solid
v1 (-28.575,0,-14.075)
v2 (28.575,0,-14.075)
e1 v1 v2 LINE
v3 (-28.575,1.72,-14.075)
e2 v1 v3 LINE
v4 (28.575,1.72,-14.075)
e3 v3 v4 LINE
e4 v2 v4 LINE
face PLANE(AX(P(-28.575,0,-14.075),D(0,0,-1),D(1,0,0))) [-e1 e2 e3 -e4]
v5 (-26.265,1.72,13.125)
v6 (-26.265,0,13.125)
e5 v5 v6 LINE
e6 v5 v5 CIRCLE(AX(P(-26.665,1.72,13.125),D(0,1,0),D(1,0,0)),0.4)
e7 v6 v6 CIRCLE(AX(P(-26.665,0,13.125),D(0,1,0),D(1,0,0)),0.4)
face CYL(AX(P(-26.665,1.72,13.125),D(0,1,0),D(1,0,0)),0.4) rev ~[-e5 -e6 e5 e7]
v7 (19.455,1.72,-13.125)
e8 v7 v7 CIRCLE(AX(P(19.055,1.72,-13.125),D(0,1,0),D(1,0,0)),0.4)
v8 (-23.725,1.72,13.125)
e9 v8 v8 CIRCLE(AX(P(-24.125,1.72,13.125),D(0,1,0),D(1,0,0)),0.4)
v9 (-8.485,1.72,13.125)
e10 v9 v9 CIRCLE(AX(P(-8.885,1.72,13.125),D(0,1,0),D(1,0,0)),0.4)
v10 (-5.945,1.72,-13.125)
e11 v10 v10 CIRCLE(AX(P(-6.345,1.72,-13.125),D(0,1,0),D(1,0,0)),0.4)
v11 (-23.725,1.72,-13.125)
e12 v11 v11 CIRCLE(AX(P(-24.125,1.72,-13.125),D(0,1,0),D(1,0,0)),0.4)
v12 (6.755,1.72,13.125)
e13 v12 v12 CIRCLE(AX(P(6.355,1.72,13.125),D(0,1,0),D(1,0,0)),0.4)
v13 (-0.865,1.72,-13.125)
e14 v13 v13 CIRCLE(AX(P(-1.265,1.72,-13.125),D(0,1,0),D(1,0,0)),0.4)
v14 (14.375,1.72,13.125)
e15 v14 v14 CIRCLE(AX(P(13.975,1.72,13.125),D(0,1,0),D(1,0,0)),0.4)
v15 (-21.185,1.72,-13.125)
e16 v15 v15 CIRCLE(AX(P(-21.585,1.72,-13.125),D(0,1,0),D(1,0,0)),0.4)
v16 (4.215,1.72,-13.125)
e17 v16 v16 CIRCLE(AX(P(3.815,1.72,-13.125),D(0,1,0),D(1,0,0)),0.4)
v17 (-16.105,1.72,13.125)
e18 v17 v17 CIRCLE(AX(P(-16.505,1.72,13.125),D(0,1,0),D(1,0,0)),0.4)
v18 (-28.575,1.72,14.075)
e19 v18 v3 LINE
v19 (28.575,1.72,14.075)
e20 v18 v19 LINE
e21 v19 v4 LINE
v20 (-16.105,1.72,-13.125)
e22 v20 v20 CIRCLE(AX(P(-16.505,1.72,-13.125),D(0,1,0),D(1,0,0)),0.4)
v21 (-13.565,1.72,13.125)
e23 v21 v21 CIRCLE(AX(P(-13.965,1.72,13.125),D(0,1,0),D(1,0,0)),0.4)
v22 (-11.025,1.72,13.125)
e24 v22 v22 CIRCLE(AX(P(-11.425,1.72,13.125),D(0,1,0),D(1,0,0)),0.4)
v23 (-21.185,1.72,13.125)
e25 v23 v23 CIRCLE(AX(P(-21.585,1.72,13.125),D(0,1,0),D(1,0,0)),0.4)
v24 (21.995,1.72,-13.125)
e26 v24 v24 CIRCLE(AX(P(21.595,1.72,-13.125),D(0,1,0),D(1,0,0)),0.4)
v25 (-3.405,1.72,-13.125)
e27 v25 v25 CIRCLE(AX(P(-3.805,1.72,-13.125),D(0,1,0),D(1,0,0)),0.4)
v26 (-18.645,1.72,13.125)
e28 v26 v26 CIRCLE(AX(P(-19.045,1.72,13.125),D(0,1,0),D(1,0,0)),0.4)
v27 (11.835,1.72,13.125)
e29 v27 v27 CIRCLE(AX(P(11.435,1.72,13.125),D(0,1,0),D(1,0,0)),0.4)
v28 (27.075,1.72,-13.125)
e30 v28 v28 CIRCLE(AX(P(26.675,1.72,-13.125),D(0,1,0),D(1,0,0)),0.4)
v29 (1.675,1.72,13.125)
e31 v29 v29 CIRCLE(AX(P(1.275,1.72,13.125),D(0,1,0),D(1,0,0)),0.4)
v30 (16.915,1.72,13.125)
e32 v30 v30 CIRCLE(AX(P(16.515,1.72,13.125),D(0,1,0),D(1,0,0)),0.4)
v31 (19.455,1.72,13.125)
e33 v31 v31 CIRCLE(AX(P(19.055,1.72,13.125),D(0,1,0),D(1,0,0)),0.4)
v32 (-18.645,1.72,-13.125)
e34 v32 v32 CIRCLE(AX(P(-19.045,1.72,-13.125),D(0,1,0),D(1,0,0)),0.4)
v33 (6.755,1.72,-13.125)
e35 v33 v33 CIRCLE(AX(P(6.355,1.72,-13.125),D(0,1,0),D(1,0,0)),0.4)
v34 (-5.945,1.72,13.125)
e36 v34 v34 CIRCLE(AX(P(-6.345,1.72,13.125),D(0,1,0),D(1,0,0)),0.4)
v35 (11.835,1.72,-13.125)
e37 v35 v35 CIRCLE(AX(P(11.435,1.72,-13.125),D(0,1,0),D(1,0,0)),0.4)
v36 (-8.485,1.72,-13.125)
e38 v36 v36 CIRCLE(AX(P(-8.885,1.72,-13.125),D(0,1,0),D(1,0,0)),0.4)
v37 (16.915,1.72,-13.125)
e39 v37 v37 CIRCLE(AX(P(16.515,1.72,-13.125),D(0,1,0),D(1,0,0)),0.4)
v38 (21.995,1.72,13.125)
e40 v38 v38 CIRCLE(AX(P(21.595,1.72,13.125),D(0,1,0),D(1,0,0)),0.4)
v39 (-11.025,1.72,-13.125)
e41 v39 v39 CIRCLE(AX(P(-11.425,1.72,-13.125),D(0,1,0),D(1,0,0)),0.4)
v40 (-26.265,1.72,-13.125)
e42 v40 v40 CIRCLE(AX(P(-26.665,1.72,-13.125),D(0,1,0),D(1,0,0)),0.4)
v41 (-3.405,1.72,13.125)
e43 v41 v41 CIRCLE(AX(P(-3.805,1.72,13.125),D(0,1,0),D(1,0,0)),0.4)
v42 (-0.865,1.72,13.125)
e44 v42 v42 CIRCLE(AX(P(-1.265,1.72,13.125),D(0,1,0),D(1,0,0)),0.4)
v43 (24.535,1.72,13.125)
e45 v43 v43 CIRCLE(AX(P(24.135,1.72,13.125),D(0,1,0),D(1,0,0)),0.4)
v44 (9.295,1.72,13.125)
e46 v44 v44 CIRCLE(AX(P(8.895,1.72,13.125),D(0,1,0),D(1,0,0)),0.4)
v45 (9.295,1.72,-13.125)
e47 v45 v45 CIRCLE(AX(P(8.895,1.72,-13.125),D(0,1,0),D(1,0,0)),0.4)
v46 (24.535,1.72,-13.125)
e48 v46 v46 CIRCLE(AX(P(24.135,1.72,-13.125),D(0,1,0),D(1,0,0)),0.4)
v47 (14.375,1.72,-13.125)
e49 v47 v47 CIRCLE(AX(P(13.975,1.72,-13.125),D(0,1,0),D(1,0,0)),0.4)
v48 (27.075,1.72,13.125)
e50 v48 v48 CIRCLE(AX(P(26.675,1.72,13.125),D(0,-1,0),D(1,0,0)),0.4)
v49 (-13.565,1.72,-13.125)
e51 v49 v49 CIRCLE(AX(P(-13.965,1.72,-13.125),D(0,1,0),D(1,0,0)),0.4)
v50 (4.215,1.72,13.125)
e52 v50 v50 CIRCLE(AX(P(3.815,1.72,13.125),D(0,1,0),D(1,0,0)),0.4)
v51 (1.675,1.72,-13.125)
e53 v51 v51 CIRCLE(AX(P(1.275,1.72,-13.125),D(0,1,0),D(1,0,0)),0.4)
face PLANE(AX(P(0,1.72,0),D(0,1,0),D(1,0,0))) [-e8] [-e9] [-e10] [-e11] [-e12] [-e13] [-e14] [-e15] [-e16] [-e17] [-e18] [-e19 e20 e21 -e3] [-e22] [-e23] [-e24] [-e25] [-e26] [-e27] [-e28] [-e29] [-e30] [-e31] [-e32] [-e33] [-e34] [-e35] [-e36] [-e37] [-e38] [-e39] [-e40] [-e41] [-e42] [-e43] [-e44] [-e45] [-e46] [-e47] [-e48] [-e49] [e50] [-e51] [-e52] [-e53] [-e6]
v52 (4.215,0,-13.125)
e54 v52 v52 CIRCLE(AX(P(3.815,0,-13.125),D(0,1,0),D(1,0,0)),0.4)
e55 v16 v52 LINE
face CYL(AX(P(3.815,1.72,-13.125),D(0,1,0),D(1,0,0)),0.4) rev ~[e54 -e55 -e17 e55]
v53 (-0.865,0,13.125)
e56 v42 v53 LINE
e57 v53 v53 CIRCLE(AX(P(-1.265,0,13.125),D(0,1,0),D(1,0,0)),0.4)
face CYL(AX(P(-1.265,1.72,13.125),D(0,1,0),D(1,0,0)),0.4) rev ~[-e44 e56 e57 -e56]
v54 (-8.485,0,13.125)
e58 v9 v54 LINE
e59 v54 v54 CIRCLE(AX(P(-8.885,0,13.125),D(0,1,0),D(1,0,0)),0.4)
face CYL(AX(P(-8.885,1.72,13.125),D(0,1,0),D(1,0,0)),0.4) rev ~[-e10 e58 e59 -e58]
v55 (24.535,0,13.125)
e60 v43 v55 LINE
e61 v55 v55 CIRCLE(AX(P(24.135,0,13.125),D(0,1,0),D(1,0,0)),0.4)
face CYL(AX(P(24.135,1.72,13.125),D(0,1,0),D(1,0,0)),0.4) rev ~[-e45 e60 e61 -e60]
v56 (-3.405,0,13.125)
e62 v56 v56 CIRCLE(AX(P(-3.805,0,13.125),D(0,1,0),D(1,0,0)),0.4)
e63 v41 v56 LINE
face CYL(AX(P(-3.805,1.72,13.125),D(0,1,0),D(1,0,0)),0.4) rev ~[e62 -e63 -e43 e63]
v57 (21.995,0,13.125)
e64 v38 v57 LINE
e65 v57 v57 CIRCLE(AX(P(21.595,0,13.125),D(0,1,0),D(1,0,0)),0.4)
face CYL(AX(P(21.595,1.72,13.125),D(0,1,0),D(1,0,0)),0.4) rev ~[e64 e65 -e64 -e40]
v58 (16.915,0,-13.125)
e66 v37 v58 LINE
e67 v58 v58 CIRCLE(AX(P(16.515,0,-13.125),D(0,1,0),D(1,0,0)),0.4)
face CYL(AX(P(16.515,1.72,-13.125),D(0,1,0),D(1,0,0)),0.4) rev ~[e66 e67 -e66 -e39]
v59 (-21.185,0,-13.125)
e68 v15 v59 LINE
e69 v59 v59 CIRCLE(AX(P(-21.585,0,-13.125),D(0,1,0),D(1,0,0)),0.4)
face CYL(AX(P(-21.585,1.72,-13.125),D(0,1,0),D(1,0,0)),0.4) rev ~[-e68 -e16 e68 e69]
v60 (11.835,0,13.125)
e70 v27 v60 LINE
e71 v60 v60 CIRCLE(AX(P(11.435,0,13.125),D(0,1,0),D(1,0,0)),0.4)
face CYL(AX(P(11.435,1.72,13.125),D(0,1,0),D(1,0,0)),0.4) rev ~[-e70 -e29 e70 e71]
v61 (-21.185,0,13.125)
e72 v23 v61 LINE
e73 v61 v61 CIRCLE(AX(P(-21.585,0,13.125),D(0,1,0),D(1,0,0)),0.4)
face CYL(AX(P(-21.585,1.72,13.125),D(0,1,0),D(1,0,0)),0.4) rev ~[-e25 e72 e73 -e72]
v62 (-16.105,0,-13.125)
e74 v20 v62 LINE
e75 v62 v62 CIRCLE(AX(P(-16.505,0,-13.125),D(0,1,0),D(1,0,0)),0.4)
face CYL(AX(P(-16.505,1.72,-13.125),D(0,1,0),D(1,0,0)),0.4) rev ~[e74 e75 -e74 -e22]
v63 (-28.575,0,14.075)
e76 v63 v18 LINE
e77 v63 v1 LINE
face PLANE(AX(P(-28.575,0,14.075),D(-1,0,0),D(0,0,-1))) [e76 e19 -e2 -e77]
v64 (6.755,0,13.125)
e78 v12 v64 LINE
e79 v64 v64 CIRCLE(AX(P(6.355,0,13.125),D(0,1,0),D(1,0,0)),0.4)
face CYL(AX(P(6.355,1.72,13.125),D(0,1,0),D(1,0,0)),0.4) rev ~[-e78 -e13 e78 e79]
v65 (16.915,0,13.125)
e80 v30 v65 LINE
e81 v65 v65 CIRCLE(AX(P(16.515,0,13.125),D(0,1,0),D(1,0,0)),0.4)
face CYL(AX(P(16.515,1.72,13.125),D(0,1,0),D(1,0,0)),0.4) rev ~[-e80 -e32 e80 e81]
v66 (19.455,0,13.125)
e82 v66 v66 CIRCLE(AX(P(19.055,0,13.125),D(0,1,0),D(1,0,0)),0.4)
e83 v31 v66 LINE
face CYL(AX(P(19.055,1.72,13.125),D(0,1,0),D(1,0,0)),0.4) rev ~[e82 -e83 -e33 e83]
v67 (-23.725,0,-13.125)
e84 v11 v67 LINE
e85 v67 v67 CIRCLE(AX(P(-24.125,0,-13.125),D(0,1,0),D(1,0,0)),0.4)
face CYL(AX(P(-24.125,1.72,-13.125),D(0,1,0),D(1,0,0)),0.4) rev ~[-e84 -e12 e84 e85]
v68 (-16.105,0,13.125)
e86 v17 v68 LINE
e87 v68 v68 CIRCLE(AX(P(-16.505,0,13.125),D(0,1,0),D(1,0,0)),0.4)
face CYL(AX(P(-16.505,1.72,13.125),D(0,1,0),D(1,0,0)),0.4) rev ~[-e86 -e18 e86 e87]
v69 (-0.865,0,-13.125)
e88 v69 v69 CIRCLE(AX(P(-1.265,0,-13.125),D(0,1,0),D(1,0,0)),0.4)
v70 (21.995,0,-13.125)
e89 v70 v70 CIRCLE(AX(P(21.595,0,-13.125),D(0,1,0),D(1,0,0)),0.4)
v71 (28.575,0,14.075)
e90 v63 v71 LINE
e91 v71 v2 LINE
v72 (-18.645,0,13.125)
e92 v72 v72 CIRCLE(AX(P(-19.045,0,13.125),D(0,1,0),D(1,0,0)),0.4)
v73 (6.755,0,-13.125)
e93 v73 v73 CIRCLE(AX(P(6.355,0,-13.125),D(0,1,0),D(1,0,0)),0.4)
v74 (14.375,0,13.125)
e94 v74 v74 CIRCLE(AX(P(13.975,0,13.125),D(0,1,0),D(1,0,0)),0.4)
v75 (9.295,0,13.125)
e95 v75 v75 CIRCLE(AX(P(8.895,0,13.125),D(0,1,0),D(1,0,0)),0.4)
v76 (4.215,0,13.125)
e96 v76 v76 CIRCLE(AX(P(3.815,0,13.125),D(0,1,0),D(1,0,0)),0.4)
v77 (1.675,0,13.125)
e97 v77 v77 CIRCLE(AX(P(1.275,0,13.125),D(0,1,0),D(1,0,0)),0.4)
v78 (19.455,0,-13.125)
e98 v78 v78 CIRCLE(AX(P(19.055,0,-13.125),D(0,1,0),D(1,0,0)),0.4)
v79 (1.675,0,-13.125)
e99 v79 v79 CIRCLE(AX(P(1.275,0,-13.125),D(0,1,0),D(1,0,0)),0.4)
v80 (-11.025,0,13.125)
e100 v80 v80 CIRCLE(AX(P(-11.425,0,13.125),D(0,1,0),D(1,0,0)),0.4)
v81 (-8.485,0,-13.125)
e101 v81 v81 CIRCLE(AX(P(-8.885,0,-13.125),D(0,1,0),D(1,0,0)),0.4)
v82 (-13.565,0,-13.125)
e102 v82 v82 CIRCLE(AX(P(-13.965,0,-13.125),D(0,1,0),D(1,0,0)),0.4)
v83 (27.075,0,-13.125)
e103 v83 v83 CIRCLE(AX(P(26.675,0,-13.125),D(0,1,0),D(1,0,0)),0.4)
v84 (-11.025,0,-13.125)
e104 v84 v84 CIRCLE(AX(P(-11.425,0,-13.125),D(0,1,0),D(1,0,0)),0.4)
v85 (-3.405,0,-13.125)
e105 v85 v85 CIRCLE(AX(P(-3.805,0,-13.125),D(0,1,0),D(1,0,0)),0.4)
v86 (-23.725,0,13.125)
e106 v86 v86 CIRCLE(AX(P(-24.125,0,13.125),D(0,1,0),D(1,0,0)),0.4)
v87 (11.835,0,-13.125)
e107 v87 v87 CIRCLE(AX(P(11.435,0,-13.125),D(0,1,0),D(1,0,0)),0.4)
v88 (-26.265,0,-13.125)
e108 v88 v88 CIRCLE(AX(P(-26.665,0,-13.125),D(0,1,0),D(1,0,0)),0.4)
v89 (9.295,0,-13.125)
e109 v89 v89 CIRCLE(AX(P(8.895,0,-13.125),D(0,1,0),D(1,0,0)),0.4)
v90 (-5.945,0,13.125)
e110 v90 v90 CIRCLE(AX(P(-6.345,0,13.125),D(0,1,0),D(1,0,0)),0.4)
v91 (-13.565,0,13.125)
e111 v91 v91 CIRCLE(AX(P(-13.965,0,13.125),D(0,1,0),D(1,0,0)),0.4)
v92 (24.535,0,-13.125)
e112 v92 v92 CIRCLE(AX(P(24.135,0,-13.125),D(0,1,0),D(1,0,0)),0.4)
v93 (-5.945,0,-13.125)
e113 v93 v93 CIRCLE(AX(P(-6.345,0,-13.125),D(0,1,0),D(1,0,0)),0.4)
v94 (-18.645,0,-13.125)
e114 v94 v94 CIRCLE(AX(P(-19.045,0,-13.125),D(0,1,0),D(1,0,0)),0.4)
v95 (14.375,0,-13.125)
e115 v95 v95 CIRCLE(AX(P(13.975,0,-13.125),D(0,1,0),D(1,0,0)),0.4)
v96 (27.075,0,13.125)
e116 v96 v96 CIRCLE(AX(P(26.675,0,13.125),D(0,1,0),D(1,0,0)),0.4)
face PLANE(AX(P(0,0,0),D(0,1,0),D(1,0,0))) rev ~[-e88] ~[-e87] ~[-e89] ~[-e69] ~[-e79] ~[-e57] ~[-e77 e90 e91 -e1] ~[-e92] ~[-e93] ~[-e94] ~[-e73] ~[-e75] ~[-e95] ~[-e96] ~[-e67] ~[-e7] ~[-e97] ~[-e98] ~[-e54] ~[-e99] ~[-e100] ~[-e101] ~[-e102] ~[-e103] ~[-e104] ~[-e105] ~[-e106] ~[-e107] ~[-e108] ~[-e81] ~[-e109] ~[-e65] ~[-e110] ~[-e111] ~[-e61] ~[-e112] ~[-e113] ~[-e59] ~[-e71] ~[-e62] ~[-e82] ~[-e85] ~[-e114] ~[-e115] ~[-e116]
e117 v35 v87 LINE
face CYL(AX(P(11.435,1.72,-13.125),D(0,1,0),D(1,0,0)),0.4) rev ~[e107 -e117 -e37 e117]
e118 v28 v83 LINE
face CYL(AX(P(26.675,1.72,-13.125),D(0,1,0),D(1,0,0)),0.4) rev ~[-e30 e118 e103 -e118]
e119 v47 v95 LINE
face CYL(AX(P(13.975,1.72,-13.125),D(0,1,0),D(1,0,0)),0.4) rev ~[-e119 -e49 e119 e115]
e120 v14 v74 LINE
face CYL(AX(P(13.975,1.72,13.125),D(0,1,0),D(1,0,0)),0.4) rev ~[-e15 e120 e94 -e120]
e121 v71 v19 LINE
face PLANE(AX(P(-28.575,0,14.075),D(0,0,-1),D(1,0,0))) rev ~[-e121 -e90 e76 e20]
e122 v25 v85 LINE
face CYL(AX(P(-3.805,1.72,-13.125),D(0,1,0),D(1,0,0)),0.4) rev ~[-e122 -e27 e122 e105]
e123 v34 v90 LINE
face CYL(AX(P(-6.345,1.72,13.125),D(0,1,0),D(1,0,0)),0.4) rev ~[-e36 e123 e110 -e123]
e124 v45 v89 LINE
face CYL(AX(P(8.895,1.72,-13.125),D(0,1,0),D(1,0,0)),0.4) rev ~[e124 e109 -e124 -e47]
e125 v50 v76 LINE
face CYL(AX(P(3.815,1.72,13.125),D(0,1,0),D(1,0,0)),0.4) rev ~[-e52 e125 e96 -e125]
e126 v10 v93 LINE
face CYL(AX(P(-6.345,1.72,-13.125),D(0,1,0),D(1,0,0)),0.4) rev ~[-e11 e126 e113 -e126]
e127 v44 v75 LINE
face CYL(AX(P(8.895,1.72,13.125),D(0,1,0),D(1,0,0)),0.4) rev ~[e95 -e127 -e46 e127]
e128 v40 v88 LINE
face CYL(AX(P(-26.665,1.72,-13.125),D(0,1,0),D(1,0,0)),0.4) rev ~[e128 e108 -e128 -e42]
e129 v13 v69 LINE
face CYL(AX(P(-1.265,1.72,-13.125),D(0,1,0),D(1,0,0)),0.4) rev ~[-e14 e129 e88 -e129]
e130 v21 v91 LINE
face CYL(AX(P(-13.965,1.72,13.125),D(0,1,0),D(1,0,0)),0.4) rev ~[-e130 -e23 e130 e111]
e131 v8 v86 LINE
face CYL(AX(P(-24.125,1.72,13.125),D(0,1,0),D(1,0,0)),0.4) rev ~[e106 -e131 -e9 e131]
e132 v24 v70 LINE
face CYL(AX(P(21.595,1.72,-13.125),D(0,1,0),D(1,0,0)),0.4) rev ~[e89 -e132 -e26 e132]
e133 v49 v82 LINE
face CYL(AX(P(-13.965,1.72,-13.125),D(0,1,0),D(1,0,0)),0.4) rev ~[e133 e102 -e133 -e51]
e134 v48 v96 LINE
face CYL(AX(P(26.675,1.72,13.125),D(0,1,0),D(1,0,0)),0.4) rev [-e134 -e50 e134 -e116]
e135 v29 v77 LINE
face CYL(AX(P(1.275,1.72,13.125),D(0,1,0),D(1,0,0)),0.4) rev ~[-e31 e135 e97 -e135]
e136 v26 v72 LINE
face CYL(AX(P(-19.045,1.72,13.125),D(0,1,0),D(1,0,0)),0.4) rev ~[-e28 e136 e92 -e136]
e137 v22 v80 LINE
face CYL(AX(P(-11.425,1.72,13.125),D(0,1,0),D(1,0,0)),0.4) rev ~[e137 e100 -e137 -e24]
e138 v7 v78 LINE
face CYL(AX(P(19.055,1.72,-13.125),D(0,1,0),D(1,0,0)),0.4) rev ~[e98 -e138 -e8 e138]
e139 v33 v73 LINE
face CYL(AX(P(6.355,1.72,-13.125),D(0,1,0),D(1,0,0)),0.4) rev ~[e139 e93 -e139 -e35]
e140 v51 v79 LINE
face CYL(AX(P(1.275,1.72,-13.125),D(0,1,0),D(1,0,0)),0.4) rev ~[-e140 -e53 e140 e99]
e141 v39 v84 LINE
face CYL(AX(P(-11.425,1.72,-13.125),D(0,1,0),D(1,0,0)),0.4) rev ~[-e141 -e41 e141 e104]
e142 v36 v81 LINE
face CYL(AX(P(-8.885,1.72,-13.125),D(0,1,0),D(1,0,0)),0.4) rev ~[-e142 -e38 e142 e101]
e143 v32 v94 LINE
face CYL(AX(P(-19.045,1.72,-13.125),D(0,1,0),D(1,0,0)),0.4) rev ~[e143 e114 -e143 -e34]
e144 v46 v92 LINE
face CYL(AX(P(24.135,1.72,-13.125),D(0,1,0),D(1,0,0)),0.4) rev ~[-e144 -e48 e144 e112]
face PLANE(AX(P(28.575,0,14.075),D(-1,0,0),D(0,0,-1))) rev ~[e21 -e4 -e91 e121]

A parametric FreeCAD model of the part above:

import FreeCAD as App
import Part
import Sketcher
from FreeCAD import Vector
Q = App.Units.Quantity


def add_polygon(sketch, points):
    """Adds a closed chain of lines whose ends are joined by coincident constraints."""
    first, n = sketch.GeometryCount, len(points)
    for a, b in zip(points, points[1:] + points[:1]):
        sketch.addGeometry(Part.LineSegment(App.Vector(*a, 0), App.Vector(*b, 0)), False)
    for i in range(n):
        sketch.addConstraint(Sketcher.Constraint("Coincident", first + i, 2, first + (i + 1) % n, 1))

doc = App.newDocument("Part")
body = doc.addObject("PartDesign::Body", "Body")

# Sketch on XZ plane
sketch1 = body.newObject("Sketcher::SketchObject", "Sketch")
sketch1.AttachmentSupport = (doc.getObject("XZ_Plane"), [""])
sketch1.MapMode = "FlatFace"
add_polygon(sketch1, [(-29, -14), (-29, 14), (29, 14), (29, -14)])  # lines 0-3
sketch1.addConstraint([
    Sketcher.Constraint("Vertical", 0),
    Sketcher.Constraint("Horizontal", 1),
    Sketcher.Constraint("Vertical", 2),
    Sketcher.Constraint("Horizontal", 3),
    Sketcher.Constraint("Symmetric", 0, 2, 2, 2, -1, 1),
    Sketcher.Constraint("DistanceX", 1, 1, 1, 2, Q("57.15 mm")),
    Sketcher.Constraint("DistanceY", 0, 1, 0, 2, Q("28.15 mm")),
])
pad1 = body.newObject("PartDesign::Pad", "Pad")
pad1.Profile = sketch1
pad1.Length = 1.72
pad1.Reversed = True

# Sketch on XZ plane
sketch2 = body.newObject("Sketcher::SketchObject", "Sketch001")
sketch2.AttachmentSupport = (doc.getObject("XZ_Plane"), [""])
sketch2.MapMode = "FlatFace"
sketch2.AttachmentOffset = App.Placement(Vector(0, 0, -1.72), App.Rotation())
sketch2.addGeometry(Part.Circle(Vector(26.68, -13.12, 0), Vector(0, 0, 1), 0.4), False)
sketch2.addConstraint([
    Sketcher.Constraint("Diameter", 0, Q("0.8 mm")),
    Sketcher.Constraint("DistanceX", -1, 1, 0, 3, Q("26.675 mm")),
    Sketcher.Constraint("DistanceY", 0, 3, -1, 1, Q("13.125 mm")),
])
pocket1 = body.newObject("PartDesign::Pocket", "Pocket")
pocket1.Profile = sketch2
pocket1.Type = "ThroughAll"
pocket1.Reversed = True
doc.recompute()

linearpattern = body.newObject("PartDesign::LinearPattern", "LinearPattern")
linearpattern.Originals = [pocket1]
linearpattern.Direction = (doc.getObject("X_Axis"), [""])
linearpattern.Mode = "offset"
linearpattern.Offset = 2.54
linearpattern.Occurrences = 22
linearpattern.Reversed = True
body.Tip = linearpattern
doc.recompute()

mirrored = body.newObject("PartDesign::Mirrored", "Mirrored")
mirrored.Originals = [pocket1]
mirrored.MirrorPlane = (doc.getObject("XY_Plane"), [""])
body.Tip = mirrored

# Sketch on XZ plane
sketch3 = body.newObject("Sketcher::SketchObject", "Sketch002")
sketch3.AttachmentSupport = (doc.getObject("XZ_Plane"), [""])
sketch3.MapMode = "FlatFace"
sketch3.AttachmentOffset = App.Placement(Vector(0, 0, -1.72), App.Rotation())
sketch3.addGeometry(Part.Circle(Vector(24.14, 13.12, 0), Vector(0, 0, 1), 0.4), False)
sketch3.addConstraint([
    Sketcher.Constraint("Diameter", 0, Q("0.8 mm")),
    Sketcher.Constraint("DistanceX", -1, 1, 0, 3, Q("24.135 mm")),
    Sketcher.Constraint("DistanceY", -1, 1, 0, 3, Q("13.125 mm")),
])
pocket2 = body.newObject("PartDesign::Pocket", "Pocket001")
pocket2.Profile = sketch3
pocket2.Type = "ThroughAll"
pocket2.Reversed = True

# Sketch on XZ plane
sketch4 = body.newObject("Sketcher::SketchObject", "Sketch003")
sketch4.AttachmentSupport = (doc.getObject("XZ_Plane"), [""])
sketch4.MapMode = "FlatFace"
sketch4.AttachmentOffset = App.Placement(Vector(0, 0, -1.72), App.Rotation())
sketch4.addGeometry(Part.Circle(Vector(21.59, 13.12, 0), Vector(0, 0, 1), 0.4), False)
sketch4.addConstraint([
    Sketcher.Constraint("Diameter", 0, Q("0.8 mm")),
    Sketcher.Constraint("DistanceX", -1, 1, 0, 3, Q("21.595 mm")),
    Sketcher.Constraint("DistanceY", -1, 1, 0, 3, Q("13.125 mm")),
])
pocket3 = body.newObject("PartDesign::Pocket", "Pocket002")
pocket3.Profile = sketch4
pocket3.Type = "ThroughAll"
pocket3.Reversed = True

# Sketch on XZ plane
sketch5 = body.newObject("Sketcher::SketchObject", "Sketch004")
sketch5.AttachmentSupport = (doc.getObject("XZ_Plane"), [""])
sketch5.MapMode = "FlatFace"
sketch5.AttachmentOffset = App.Placement(Vector(0, 0, -1.72), App.Rotation())
sketch5.addGeometry(Part.Circle(Vector(19.05, 13.12, 0), Vector(0, 0, 1), 0.4), False)
sketch5.addConstraint([
    Sketcher.Constraint("Diameter", 0, Q("0.8 mm")),
    Sketcher.Constraint("DistanceX", -1, 1, 0, 3, Q("19.055 mm")),
    Sketcher.Constraint("DistanceY", -1, 1, 0, 3, Q("13.125 mm")),
])
pocket4 = body.newObject("PartDesign::Pocket", "Pocket003")
pocket4.Profile = sketch5
pocket4.Type = "ThroughAll"
pocket4.Reversed = True

# Sketch on XZ plane
sketch6 = body.newObject("Sketcher::SketchObject", "Sketch005")
sketch6.AttachmentSupport = (doc.getObject("XZ_Plane"), [""])
sketch6.MapMode = "FlatFace"
sketch6.AttachmentOffset = App.Placement(Vector(0, 0, -1.72), App.Rotation())
sketch6.addGeometry(Part.Circle(Vector(16.52, 13.12, 0), Vector(0, 0, 1), 0.4), False)
sketch6.addConstraint([
    Sketcher.Constraint("Diameter", 0, Q("0.8 mm")),
    Sketcher.Constraint("DistanceX", -1, 1, 0, 3, Q("16.515 mm")),
    Sketcher.Constraint("DistanceY", -1, 1, 0, 3, Q("13.125 mm")),
])
pocket5 = body.newObject("PartDesign::Pocket", "Pocket004")
pocket5.Profile = sketch6
pocket5.Type = "ThroughAll"
pocket5.Reversed = True

# Sketch on XZ plane
sketch7 = body.newObject("Sketcher::SketchObject", "Sketch006")
sketch7.AttachmentSupport = (doc.getObject("XZ_Plane"), [""])
sketch7.MapMode = "FlatFace"
sketch7.AttachmentOffset = App.Placement(Vector(0, 0, -1.72), App.Rotation())
sketch7.addGeometry(Part.Circle(Vector(13.97, 13.12, 0), Vector(0, 0, 1), 0.4), False)
sketch7.addConstraint([
    Sketcher.Constraint("Diameter", 0, Q("0.8 mm")),
    Sketcher.Constraint("DistanceX", -1, 1, 0, 3, Q("13.975 mm")),
    Sketcher.Constraint("DistanceY", -1, 1, 0, 3, Q("13.125 mm")),
])
pocket6 = body.newObject("PartDesign::Pocket", "Pocket005")
pocket6.Profile = sketch7
pocket6.Type = "ThroughAll"
pocket6.Reversed = True

# Sketch on XZ plane
sketch8 = body.newObject("Sketcher::SketchObject", "Sketch007")
sketch8.AttachmentSupport = (doc.getObject("XZ_Plane"), [""])
sketch8.MapMode = "FlatFace"
sketch8.AttachmentOffset = App.Placement(Vector(0, 0, -1.72), App.Rotation())
sketch8.addGeometry(Part.Circle(Vector(11.44, 13.12, 0), Vector(0, 0, 1), 0.4), False)
sketch8.addConstraint([
    Sketcher.Constraint("Diameter", 0, Q("0.8 mm")),
    Sketcher.Constraint("DistanceX", -1, 1, 0, 3, Q("11.435 mm")),
    Sketcher.Constraint("DistanceY", -1, 1, 0, 3, Q("13.125 mm")),
])
pocket7 = body.newObject("PartDesign::Pocket", "Pocket006")
pocket7.Profile = sketch8
pocket7.Type = "ThroughAll"
pocket7.Reversed = True

# Sketch on XZ plane
sketch9 = body.newObject("Sketcher::SketchObject", "Sketch008")
sketch9.AttachmentSupport = (doc.getObject("XZ_Plane"), [""])
sketch9.MapMode = "FlatFace"
sketch9.AttachmentOffset = App.Placement(Vector(0, 0, -1.72), App.Rotation())
sketch9.addGeometry(Part.Circle(Vector(8.89, 13.12, 0), Vector(0, 0, 1), 0.4), False)
sketch9.addConstraint([
    Sketcher.Constraint("Diameter", 0, Q("0.8 mm")),
    Sketcher.Constraint("DistanceX", -1, 1, 0, 3, Q("8.895 mm")),
    Sketcher.Constraint("DistanceY", -1, 1, 0, 3, Q("13.125 mm")),
])
pocket8 = body.newObject("PartDesign::Pocket", "Pocket007")
pocket8.Profile = sketch9
pocket8.Type = "ThroughAll"
pocket8.Reversed = True

# Sketch on XZ plane
sketch10 = body.newObject("Sketcher::SketchObject", "Sketch009")
sketch10.AttachmentSupport = (doc.getObject("XZ_Plane"), [""])
sketch10.MapMode = "FlatFace"
sketch10.AttachmentOffset = App.Placement(Vector(0, 0, -1.72), App.Rotation())
sketch10.addGeometry(Part.Circle(Vector(6.36, 13.12, 0), Vector(0, 0, 1), 0.4), False)
sketch10.addConstraint([
    Sketcher.Constraint("Diameter", 0, Q("0.8 mm")),
    Sketcher.Constraint("DistanceX", -1, 1, 0, 3, Q("6.355 mm")),
    Sketcher.Constraint("DistanceY", -1, 1, 0, 3, Q("13.125 mm")),
])
pocket9 = body.newObject("PartDesign::Pocket", "Pocket008")
pocket9.Profile = sketch10
pocket9.Type = "ThroughAll"
pocket9.Reversed = True

# Sketch on XZ plane
sketch11 = body.newObject("Sketcher::SketchObject", "Sketch010")
sketch11.AttachmentSupport = (doc.getObject("XZ_Plane"), [""])
sketch11.MapMode = "FlatFace"
sketch11.AttachmentOffset = App.Placement(Vector(0, 0, -1.72), App.Rotation())
sketch11.addGeometry(Part.Circle(Vector(3.81, 13.12, 0), Vector(0, 0, 1), 0.4), False)
sketch11.addConstraint([
    Sketcher.Constraint("Diameter", 0, Q("0.8 mm")),
    Sketcher.Constraint("DistanceX", -1, 1, 0, 3, Q("3.815 mm")),
    Sketcher.Constraint("DistanceY", -1, 1, 0, 3, Q("13.125 mm")),
])
pocket10 = body.newObject("PartDesign::Pocket", "Pocket009")
pocket10.Profile = sketch11
pocket10.Type = "ThroughAll"
pocket10.Reversed = True

# Sketch on XZ plane
sketch12 = body.newObject("Sketcher::SketchObject", "Sketch011")
sketch12.AttachmentSupport = (doc.getObject("XZ_Plane"), [""])
sketch12.MapMode = "FlatFace"
sketch12.AttachmentOffset = App.Placement(Vector(0, 0, -1.72), App.Rotation())
sketch12.addGeometry(Part.Circle(Vector(1.27, 13.12, 0), Vector(0, 0, 1), 0.4), False)
sketch12.addConstraint([
    Sketcher.Constraint("Diameter", 0, Q("0.8 mm")),
    Sketcher.Constraint("DistanceX", -1, 1, 0, 3, Q("1.275 mm")),
    Sketcher.Constraint("DistanceY", -1, 1, 0, 3, Q("13.125 mm")),
])
pocket11 = body.newObject("PartDesign::Pocket", "Pocket010")
pocket11.Profile = sketch12
pocket11.Type = "ThroughAll"
pocket11.Reversed = True

# Sketch on XZ plane
sketch13 = body.newObject("Sketcher::SketchObject", "Sketch012")
sketch13.AttachmentSupport = (doc.getObject("XZ_Plane"), [""])
sketch13.MapMode = "FlatFace"
sketch13.AttachmentOffset = App.Placement(Vector(0, 0, -1.72), App.Rotation())
sketch13.addGeometry(Part.Circle(Vector(-1.26, 13.12, 0), Vector(0, 0, 1), 0.4), False)
sketch13.addConstraint([
    Sketcher.Constraint("Diameter", 0, Q("0.8 mm")),
    Sketcher.Constraint("DistanceX", 0, 3, -1, 1, Q("1.265 mm")),
    Sketcher.Constraint("DistanceY", -1, 1, 0, 3, Q("13.125 mm")),
])
pocket12 = body.newObject("PartDesign::Pocket", "Pocket011")
pocket12.Profile = sketch13
pocket12.Type = "ThroughAll"
pocket12.Reversed = True

# Sketch on XZ plane
sketch14 = body.newObject("Sketcher::SketchObject", "Sketch013")
sketch14.AttachmentSupport = (doc.getObject("XZ_Plane"), [""])
sketch14.MapMode = "FlatFace"
sketch14.AttachmentOffset = App.Placement(Vector(0, 0, -1.72), App.Rotation())
sketch14.addGeometry(Part.Circle(Vector(-3.81, 13.12, 0), Vector(0, 0, 1), 0.4), False)
sketch14.addConstraint([
    Sketcher.Constraint("Diameter", 0, Q("0.8 mm")),
    Sketcher.Constraint("DistanceX", 0, 3, -1, 1, Q("3.805 mm")),
    Sketcher.Constraint("DistanceY", -1, 1, 0, 3, Q("13.125 mm")),
])
pocket13 = body.newObject("PartDesign::Pocket", "Pocket012")
pocket13.Profile = sketch14
pocket13.Type = "ThroughAll"
pocket13.Reversed = True

# Sketch on XZ plane
sketch15 = body.newObject("Sketcher::SketchObject", "Sketch014")
sketch15.AttachmentSupport = (doc.getObject("XZ_Plane"), [""])
sketch15.MapMode = "FlatFace"
sketch15.AttachmentOffset = App.Placement(Vector(0, 0, -1.72), App.Rotation())
sketch15.addGeometry(Part.Circle(Vector(-6.34, 13.12, 0), Vector(0, 0, 1), 0.4), False)
sketch15.addConstraint([
    Sketcher.Constraint("Diameter", 0, Q("0.8 mm")),
    Sketcher.Constraint("DistanceX", 0, 3, -1, 1, Q("6.345 mm")),
    Sketcher.Constraint("DistanceY", -1, 1, 0, 3, Q("13.125 mm")),
])
pocket14 = body.newObject("PartDesign::Pocket", "Pocket013")
pocket14.Profile = sketch15
pocket14.Type = "ThroughAll"
pocket14.Reversed = True

# Sketch on XZ plane
sketch16 = body.newObject("Sketcher::SketchObject", "Sketch015")
sketch16.AttachmentSupport = (doc.getObject("XZ_Plane"), [""])
sketch16.MapMode = "FlatFace"
sketch16.AttachmentOffset = App.Placement(Vector(0, 0, -1.72), App.Rotation())
sketch16.addGeometry(Part.Circle(Vector(-8.88, 13.12, 0), Vector(0, 0, 1), 0.4), False)
sketch16.addConstraint([
    Sketcher.Constraint("Diameter", 0, Q("0.8 mm")),
    Sketcher.Constraint("DistanceX", 0, 3, -1, 1, Q("8.885 mm")),
    Sketcher.Constraint("DistanceY", -1, 1, 0, 3, Q("13.125 mm")),
])
pocket15 = body.newObject("PartDesign::Pocket", "Pocket014")
pocket15.Profile = sketch16
pocket15.Type = "ThroughAll"
pocket15.Reversed = True

# Sketch on XZ plane
sketch17 = body.newObject("Sketcher::SketchObject", "Sketch016")
sketch17.AttachmentSupport = (doc.getObject("XZ_Plane"), [""])
sketch17.MapMode = "FlatFace"
sketch17.AttachmentOffset = App.Placement(Vector(0, 0, -1.72), App.Rotation())
sketch17.addGeometry(Part.Circle(Vector(-11.43, 13.12, 0), Vector(0, 0, 1), 0.4), False)
sketch17.addConstraint([
    Sketcher.Constraint("Diameter", 0, Q("0.8 mm")),
    Sketcher.Constraint("DistanceX", 0, 3, -1, 1, Q("11.425 mm")),
    Sketcher.Constraint("DistanceY", -1, 1, 0, 3, Q("13.125 mm")),
])
pocket16 = body.newObject("PartDesign::Pocket", "Pocket015")
pocket16.Profile = sketch17
pocket16.Type = "ThroughAll"
pocket16.Reversed = True

# Sketch on XZ plane
sketch18 = body.newObject("Sketcher::SketchObject", "Sketch017")
sketch18.AttachmentSupport = (doc.getObject("XZ_Plane"), [""])
sketch18.MapMode = "FlatFace"
sketch18.AttachmentOffset = App.Placement(Vector(0, 0, -1.72), App.Rotation())
sketch18.addGeometry(Part.Circle(Vector(-13.96, 13.12, 0), Vector(0, 0, 1), 0.4), False)
sketch18.addConstraint([
    Sketcher.Constraint("Diameter", 0, Q("0.8 mm")),
    Sketcher.Constraint("DistanceX", 0, 3, -1, 1, Q("13.965 mm")),
    Sketcher.Constraint("DistanceY", -1, 1, 0, 3, Q("13.125 mm")),
])
pocket17 = body.newObject("PartDesign::Pocket", "Pocket016")
pocket17.Profile = sketch18
pocket17.Type = "ThroughAll"
pocket17.Reversed = True

# Sketch on XZ plane
sketch19 = body.newObject("Sketcher::SketchObject", "Sketch018")
sketch19.AttachmentSupport = (doc.getObject("XZ_Plane"), [""])
sketch19.MapMode = "FlatFace"
sketch19.AttachmentOffset = App.Placement(Vector(0, 0, -1.72), App.Rotation())
sketch19.addGeometry(Part.Circle(Vector(-16.5, 13.12, 0), Vector(0, 0, 1), 0.4), False)
sketch19.addConstraint([
    Sketcher.Constraint("Diameter", 0, Q("0.8 mm")),
    Sketcher.Constraint("DistanceX", 0, 3, -1, 1, Q("16.505 mm")),
    Sketcher.Constraint("DistanceY", -1, 1, 0, 3, Q("13.125 mm")),
])
pocket18 = body.newObject("PartDesign::Pocket", "Pocket017")
pocket18.Profile = sketch19
pocket18.Type = "ThroughAll"
pocket18.Reversed = True

# Sketch on XZ plane
sketch20 = body.newObject("Sketcher::SketchObject", "Sketch019")
sketch20.AttachmentSupport = (doc.getObject("XZ_Plane"), [""])
sketch20.MapMode = "FlatFace"
sketch20.AttachmentOffset = App.Placement(Vector(0, 0, -1.72), App.Rotation())
sketch20.addGeometry(Part.Circle(Vector(-19.05, 13.12, 0), Vector(0, 0, 1), 0.4), False)
sketch20.addConstraint([
    Sketcher.Constraint("Diameter", 0, Q("0.8 mm")),
    Sketcher.Constraint("DistanceX", 0, 3, -1, 1, Q("19.045 mm")),
    Sketcher.Constraint("DistanceY", -1, 1, 0, 3, Q("13.125 mm")),
])
pocket19 = body.newObject("PartDesign::Pocket", "Pocket018")
pocket19.Profile = sketch20
pocket19.Type = "ThroughAll"
pocket19.Reversed = True

# Sketch on XZ plane
sketch21 = body.newObject("Sketcher::SketchObject", "Sketch020")
sketch21.AttachmentSupport = (doc.getObject("XZ_Plane"), [""])
sketch21.MapMode = "FlatFace"
sketch21.AttachmentOffset = App.Placement(Vector(0, 0, -1.72), App.Rotation())
sketch21.addGeometry(Part.Circle(Vector(-21.59, 13.12, 0), Vector(0, 0, 1), 0.4), False)
sketch21.addConstraint([
    Sketcher.Constraint("Diameter", 0, Q("0.8 mm")),
    Sketcher.Constraint("DistanceX", 0, 3, -1, 1, Q("21.585 mm")),
    Sketcher.Constraint("DistanceY", -1, 1, 0, 3, Q("13.125 mm")),
])
pocket20 = body.newObject("PartDesign::Pocket", "Pocket019")
pocket20.Profile = sketch21
pocket20.Type = "ThroughAll"
pocket20.Reversed = True

# Sketch on XZ plane
sketch22 = body.newObject("Sketcher::SketchObject", "Sketch021")
sketch22.AttachmentSupport = (doc.getObject("XZ_Plane"), [""])
sketch22.MapMode = "FlatFace"
sketch22.AttachmentOffset = App.Placement(Vector(0, 0, -1.72), App.Rotation())
sketch22.addGeometry(Part.Circle(Vector(-24.12, 13.12, 0), Vector(0, 0, 1), 0.4), False)
sketch22.addConstraint([
    Sketcher.Constraint("Diameter", 0, Q("0.8 mm")),
    Sketcher.Constraint("DistanceX", 0, 3, -1, 1, Q("24.125 mm")),
    Sketcher.Constraint("DistanceY", -1, 1, 0, 3, Q("13.125 mm")),
])
pocket21 = body.newObject("PartDesign::Pocket", "Pocket020")
pocket21.Profile = sketch22
pocket21.Type = "ThroughAll"
pocket21.Reversed = True

# Sketch on XZ plane
sketch23 = body.newObject("Sketcher::SketchObject", "Sketch022")
sketch23.AttachmentSupport = (doc.getObject("XZ_Plane"), [""])
sketch23.MapMode = "FlatFace"
sketch23.AttachmentOffset = App.Placement(Vector(0, 0, -1.72), App.Rotation())
sketch23.addGeometry(Part.Circle(Vector(-26.66, 13.12, 0), Vector(0, 0, 1), 0.4), False)
sketch23.addConstraint([
    Sketcher.Constraint("Diameter", 0, Q("0.8 mm")),
    Sketcher.Constraint("DistanceX", 0, 3, -1, 1, Q("26.665 mm")),
    Sketcher.Constraint("DistanceY", -1, 1, 0, 3, Q("13.125 mm")),
])
pocket22 = body.newObject("PartDesign::Pocket", "Pocket021")
pocket22.Profile = sketch23
pocket22.Type = "ThroughAll"
pocket22.Reversed = True

doc.recompute()
